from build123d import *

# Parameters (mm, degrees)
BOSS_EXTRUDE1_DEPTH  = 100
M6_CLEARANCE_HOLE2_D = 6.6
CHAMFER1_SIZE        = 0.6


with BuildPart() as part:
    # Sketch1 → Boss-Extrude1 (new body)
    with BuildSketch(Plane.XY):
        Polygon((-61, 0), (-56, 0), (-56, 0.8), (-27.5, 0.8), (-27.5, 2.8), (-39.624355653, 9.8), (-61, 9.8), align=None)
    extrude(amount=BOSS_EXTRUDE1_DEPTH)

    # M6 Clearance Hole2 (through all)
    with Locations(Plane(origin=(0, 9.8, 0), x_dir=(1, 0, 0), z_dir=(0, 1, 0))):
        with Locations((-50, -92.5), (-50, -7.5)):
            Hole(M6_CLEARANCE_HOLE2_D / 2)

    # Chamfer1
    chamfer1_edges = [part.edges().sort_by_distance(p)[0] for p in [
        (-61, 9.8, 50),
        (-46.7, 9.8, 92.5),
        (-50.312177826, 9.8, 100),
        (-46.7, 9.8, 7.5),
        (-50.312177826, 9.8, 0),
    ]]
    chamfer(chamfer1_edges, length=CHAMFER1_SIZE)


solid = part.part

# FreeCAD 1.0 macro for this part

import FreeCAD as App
import Part
import Sketcher
from FreeCAD import Vector
Q = App.Units.Quantity


def edges_at(feature, points):
    """Names of the edges that pass closest to the given points."""
    edges = feature.Shape.Edges
    near = lambda p: min(range(len(edges)), key=lambda i: edges[i].distToShape(Part.Vertex(*p))[0])
    return sorted({f"Edge{near(p) + 1}" for p in points})


def add_polygon(sketch, points):
    """Adds a closed chain of lines whose ends are joined by coincident constraints."""
    first, n = sketch.GeometryCount, len(points)
    for a, b in zip(points, points[1:] + points[:1]):
        sketch.addGeometry(Part.LineSegment(App.Vector(*a, 0), App.Vector(*b, 0)), False)
    for i in range(n):
        sketch.addConstraint(Sketcher.Constraint("Coincident", first + i, 2, first + (i + 1) % n, 1))

doc = App.newDocument("Part")
body = doc.addObject("PartDesign::Body", "Body")

# Sketch on XY plane
sketch1 = body.newObject("Sketcher::SketchObject", "Sketch")
sketch1.AttachmentSupport = (doc.getObject("XY_Plane"), [""])
sketch1.MapMode = "FlatFace"
add_polygon(sketch1, [(-61, 0), (-56, 0), (-56, 0.8), (-27.5, 0.8), (-27.5, 2.8), (-39.6, 9.8), (-61, 9.8)])  # lines 0-6
sketch1.addConstraint([
    Sketcher.Constraint("Horizontal", 0),
    Sketcher.Constraint("Vertical", 1),
    Sketcher.Constraint("Horizontal", 2),
    Sketcher.Constraint("Vertical", 3),
    Sketcher.Constraint("Horizontal", 5),
    Sketcher.Constraint("Vertical", 6),
    Sketcher.Constraint("PointOnObject", 0, 2, -1),
    Sketcher.Constraint("DistanceX", 0, 1, 0, 2, Q("5 mm")),
    Sketcher.Constraint("DistanceY", 3, 1, 3, 2, Q("2 mm")),
    Sketcher.Constraint("Angle", 4, Q("150 deg")),
    Sketcher.Constraint("Distance", 4, Q("14 mm")),
    Sketcher.Constraint("DistanceX", 2, 1, 2, 2, Q("28.5 mm")),
    Sketcher.Constraint("DistanceY", 1, 1, 1, 2, Q("0.8 mm")),
    Sketcher.Constraint("DistanceX", 0, 2, -1, 1, Q("56 mm")),
])
pad1 = body.newObject("PartDesign::Pad", "Pad")
pad1.Profile = sketch1
pad1.Length = 100

# Sketch on XZ plane
sketch2 = body.newObject("Sketcher::SketchObject", "Sketch001")
sketch2.AttachmentSupport = (doc.getObject("XZ_Plane"), [""])
sketch2.MapMode = "FlatFace"
sketch2.AttachmentOffset = App.Placement(Vector(0, 0, -9.8), App.Rotation())
sketch2.addGeometry([
    Part.Circle(Vector(-50, 92.5, 0), Vector(0, 0, 1), 3.3),
    Part.Circle(Vector(-50, 7.5, 0), Vector(0, 0, 1), 3.3),
], False)
sketch2.addConstraint([
    Sketcher.Constraint("Equal", 0, 1),
    Sketcher.Constraint("Vertical", 0, 3, 1, 3),
    Sketcher.Constraint("Diameter", 0, Q("6.6 mm")),
    Sketcher.Constraint("DistanceX", 0, 3, -1, 1, Q("50 mm")),
    Sketcher.Constraint("DistanceY", 1, 3, 0, 3, Q("85 mm")),
    Sketcher.Constraint("DistanceY", -1, 1, 0, 3, Q("92.5 mm")),
])
doc.recompute()
hole = body.newObject("PartDesign::Hole", "Hole")
hole.Profile = sketch2
hole.ThreadType = "None"
hole.Diameter = 6.6
hole.DepthType = "ThroughAll"
hole.Reversed = True
doc.recompute()

chamfer = body.newObject("PartDesign::Chamfer", "Chamfer")
chamfer.Base = (hole, edges_at(hole, [
    (-61, 9.8, 50),
    (-46.7, 9.8, 92.5),
    (-50.312, 9.8, 100),
    (-46.7, 9.8, 7.5),
    (-50.312, 9.8, 0),
]))
chamfer.Size = 0.6

doc.recompute()
